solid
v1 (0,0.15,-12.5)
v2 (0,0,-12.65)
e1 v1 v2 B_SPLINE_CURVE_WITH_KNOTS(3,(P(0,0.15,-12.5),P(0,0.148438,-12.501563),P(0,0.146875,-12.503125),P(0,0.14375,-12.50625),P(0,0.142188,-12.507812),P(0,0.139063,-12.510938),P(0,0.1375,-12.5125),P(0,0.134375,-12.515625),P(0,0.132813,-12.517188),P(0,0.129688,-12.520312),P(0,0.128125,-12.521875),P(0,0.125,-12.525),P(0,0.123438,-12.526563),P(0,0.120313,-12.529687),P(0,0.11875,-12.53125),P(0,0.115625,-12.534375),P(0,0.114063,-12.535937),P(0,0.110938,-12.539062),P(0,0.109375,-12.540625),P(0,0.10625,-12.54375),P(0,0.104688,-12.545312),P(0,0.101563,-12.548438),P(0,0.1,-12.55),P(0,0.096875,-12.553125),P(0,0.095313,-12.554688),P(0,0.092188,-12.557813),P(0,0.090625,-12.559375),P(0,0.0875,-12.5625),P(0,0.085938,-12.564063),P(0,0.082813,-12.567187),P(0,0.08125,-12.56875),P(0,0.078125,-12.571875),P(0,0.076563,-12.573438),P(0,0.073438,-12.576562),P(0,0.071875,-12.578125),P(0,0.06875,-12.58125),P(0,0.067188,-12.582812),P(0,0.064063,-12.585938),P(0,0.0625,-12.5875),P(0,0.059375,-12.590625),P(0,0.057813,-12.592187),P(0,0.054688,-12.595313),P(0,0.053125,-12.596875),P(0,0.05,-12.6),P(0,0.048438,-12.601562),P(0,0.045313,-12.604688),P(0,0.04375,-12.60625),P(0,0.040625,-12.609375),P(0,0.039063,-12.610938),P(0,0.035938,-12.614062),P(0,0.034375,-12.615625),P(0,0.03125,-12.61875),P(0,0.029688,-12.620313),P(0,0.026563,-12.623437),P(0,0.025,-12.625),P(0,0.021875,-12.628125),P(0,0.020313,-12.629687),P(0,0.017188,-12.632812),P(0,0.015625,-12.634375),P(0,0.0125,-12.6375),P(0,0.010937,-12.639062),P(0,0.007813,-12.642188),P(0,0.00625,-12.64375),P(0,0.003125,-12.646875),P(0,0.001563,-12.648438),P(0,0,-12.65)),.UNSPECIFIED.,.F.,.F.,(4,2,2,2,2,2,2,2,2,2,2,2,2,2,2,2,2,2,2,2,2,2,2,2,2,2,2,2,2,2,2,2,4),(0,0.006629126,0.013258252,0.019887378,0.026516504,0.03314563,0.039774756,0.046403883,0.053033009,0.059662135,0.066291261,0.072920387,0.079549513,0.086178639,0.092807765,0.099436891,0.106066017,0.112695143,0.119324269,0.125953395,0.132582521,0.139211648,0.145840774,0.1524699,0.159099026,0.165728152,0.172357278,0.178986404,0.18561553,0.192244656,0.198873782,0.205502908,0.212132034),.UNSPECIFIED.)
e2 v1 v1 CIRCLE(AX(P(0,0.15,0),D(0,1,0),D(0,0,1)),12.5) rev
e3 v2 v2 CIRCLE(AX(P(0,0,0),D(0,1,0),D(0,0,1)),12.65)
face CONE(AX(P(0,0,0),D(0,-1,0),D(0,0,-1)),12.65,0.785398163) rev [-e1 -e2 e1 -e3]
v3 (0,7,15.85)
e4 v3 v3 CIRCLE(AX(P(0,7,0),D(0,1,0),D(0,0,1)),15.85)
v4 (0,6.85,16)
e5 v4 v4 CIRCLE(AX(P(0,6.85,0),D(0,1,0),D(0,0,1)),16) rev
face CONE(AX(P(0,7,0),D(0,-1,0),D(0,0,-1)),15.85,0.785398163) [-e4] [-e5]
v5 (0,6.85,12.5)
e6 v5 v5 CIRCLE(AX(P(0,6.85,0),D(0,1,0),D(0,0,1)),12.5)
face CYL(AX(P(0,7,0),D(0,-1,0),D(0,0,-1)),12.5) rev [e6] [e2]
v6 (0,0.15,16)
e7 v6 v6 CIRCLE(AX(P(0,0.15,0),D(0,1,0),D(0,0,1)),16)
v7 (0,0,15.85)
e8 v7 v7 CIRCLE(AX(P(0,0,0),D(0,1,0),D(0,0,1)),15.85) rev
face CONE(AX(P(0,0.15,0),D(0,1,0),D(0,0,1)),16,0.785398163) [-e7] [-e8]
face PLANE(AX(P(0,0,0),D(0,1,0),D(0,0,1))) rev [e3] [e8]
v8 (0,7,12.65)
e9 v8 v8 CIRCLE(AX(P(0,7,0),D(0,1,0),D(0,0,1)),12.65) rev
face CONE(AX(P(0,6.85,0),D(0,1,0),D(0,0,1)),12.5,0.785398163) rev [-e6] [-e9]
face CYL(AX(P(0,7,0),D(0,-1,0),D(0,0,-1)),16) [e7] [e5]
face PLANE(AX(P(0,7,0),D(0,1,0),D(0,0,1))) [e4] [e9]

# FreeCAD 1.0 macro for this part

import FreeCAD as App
import Part
import Sketcher


def edges_at(feature, points):
    """Names of the edges that pass closest to the given points."""
    edges = feature.Shape.Edges
    near = lambda p: min(range(len(edges)), key=lambda i: edges[i].distToShape(Part.Vertex(*p))[0])
    return sorted({f"Edge{near(p) + 1}" for p in points})

doc = App.newDocument("Part")
body = doc.addObject("PartDesign::Body", "Body")

# Sketch on XZ plane
sketch1 = doc.addObject("Sketcher::SketchObject", "Sketch")
body.addObject(sketch1)
sketch1.AttachmentSupport = (doc.XZ_Plane, [""])
sketch1.MapMode = "FlatFace"
sketch1.addGeometry(Part.Circle(App.Vector(0, 0, 0), App.Vector(0, 0, 1), 16), False)
sketch1.addGeometry(Part.Circle(App.Vector(0, 0, 0), App.Vector(0, 0, 1), 12), False)
sketch1.addConstraint(Sketcher.Constraint("Coincident", 0, 3, -1, 1))
sketch1.addConstraint(Sketcher.Constraint("Coincident", 1, 3, -1, 1))
sketch1.addConstraint(Sketcher.Constraint("Diameter", 0, 32.0))
sketch1.addConstraint(Sketcher.Constraint("Diameter", 1, 25.0))
pad1 = doc.addObject("PartDesign::Pad", "Pad")
body.addObject(pad1)
pad1.Profile = sketch1
pad1.Length = 7
pad1.Reversed = True
doc.recompute()

chamfer = doc.addObject("PartDesign::Chamfer", "Chamfer")
body.addObject(chamfer)
chamfer.Base = (pad1, edges_at(pad1, [
    (0, 0, -16),
    (0, 7, -16),
    (0, 0, -12.5),
    (0, 7, -12.5),
]))
chamfer.Size = 0.15

doc.recompute()
